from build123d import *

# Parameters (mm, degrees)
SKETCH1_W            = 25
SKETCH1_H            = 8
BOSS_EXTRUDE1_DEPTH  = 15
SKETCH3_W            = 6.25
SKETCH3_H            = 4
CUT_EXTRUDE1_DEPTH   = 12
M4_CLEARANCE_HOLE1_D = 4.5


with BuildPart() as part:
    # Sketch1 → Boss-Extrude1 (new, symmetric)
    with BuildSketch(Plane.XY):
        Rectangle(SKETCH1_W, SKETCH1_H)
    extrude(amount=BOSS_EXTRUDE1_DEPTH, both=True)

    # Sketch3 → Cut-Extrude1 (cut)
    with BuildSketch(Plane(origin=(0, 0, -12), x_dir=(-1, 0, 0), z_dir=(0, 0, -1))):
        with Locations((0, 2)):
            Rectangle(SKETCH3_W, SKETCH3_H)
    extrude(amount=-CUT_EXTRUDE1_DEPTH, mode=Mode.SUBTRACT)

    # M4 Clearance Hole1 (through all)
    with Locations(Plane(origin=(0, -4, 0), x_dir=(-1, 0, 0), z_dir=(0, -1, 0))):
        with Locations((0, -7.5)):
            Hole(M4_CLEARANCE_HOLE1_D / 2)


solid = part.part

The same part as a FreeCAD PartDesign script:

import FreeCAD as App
import Part
import Sketcher

V = App.Vector


def add_polygon(sketch, points):
    """Adds a closed chain of lines whose ends are joined by coincident constraints."""
    first, n = sketch.GeometryCount, len(points)
    for a, b in zip(points, points[1:] + points[:1]):
        sketch.addGeometry(Part.LineSegment(App.Vector(*a, 0), App.Vector(*b, 0)), False)
    for i in range(n):
        sketch.addConstraint(Sketcher.Constraint("Coincident", first + i, 2, first + (i + 1) % n, 1))

doc = App.newDocument("Part")
body = doc.addObject("PartDesign::Body", "Body")

sketch1 = doc.addObject("Sketcher::SketchObject", "Sketch")
body.addObject(sketch1)
sketch1.AttachmentSupport = (doc.XY_Plane, [""])
sketch1.MapMode = "FlatFace"
add_polygon(sketch1, [(-12, 4), (-12, -4), (12, -4), (12, 4)])
sketch1.addConstraint([
    Sketcher.Constraint("Vertical", 0),
    Sketcher.Constraint("Horizontal", 1),
    Sketcher.Constraint("Vertical", 2),
    Sketcher.Constraint("Horizontal", 3),
    Sketcher.Constraint("Symmetric", 0, 2, 2, 2, -1, 1),
    Sketcher.Constraint("DistanceX", 1, 1, 1, 2, 25.0),
    Sketcher.Constraint("DistanceY", 0, 2, 0, 1, 8.0),
])
pad1 = doc.addObject("PartDesign::Pad", "Pad")
body.addObject(pad1)
pad1.Profile = sketch1
pad1.Length = 30
pad1.Midplane = True

sketch2 = doc.addObject("Sketcher::SketchObject", "Sketch001")
body.addObject(sketch2)
sketch2.AttachmentSupport = (doc.XY_Plane, [""])
sketch2.MapMode = "FlatFace"
sketch2.AttachmentOffset = App.Placement(V(0, 0, -12), App.Rotation())
add_polygon(sketch2, [(3.1, 4), (3.1, 0), (-3.1, 0), (-3.1, 4)])
sketch2.addConstraint([
    Sketcher.Constraint("Vertical", 0),
    Sketcher.Constraint("Horizontal", 1),
    Sketcher.Constraint("Vertical", 2),
    Sketcher.Constraint("Horizontal", 3),
    Sketcher.Constraint("Symmetric", 0, 2, 1, 2, -1, 1),
    Sketcher.Constraint("DistanceY", 0, 2, 0, 1, 4.0),
    Sketcher.Constraint("DistanceX", 1, 2, 1, 1, 6.25),
])
pocket1 = doc.addObject("PartDesign::Pocket", "Pocket")
body.addObject(pocket1)
pocket1.Profile = sketch2
pocket1.Length = 12
pocket1.Reversed = True

sketch3 = doc.addObject("Sketcher::SketchObject", "Sketch002")
body.addObject(sketch3)
sketch3.AttachmentSupport = (doc.XZ_Plane, [""])
sketch3.MapMode = "FlatFace"
sketch3.AttachmentOffset = App.Placement(V(0, 0, 4), App.Rotation())
sketch3.addGeometry(Part.Circle(V(0, 7.5, 0), V(0, 0, 1), 2.2), False)
sketch3.addConstraint([
    Sketcher.Constraint("PointOnObject", 0, 3, -2),
    Sketcher.Constraint("Diameter", 0, 4.5),
    Sketcher.Constraint("DistanceY", -1, 1, 0, 3, 7.5),
])
doc.recompute()
hole = doc.addObject("PartDesign::Hole", "Hole")
body.addObject(hole)
hole.Profile = sketch3
hole.ThreadType = "None"
hole.Diameter = 4.5
hole.DepthType = "ThroughAll"

doc.recompute()
